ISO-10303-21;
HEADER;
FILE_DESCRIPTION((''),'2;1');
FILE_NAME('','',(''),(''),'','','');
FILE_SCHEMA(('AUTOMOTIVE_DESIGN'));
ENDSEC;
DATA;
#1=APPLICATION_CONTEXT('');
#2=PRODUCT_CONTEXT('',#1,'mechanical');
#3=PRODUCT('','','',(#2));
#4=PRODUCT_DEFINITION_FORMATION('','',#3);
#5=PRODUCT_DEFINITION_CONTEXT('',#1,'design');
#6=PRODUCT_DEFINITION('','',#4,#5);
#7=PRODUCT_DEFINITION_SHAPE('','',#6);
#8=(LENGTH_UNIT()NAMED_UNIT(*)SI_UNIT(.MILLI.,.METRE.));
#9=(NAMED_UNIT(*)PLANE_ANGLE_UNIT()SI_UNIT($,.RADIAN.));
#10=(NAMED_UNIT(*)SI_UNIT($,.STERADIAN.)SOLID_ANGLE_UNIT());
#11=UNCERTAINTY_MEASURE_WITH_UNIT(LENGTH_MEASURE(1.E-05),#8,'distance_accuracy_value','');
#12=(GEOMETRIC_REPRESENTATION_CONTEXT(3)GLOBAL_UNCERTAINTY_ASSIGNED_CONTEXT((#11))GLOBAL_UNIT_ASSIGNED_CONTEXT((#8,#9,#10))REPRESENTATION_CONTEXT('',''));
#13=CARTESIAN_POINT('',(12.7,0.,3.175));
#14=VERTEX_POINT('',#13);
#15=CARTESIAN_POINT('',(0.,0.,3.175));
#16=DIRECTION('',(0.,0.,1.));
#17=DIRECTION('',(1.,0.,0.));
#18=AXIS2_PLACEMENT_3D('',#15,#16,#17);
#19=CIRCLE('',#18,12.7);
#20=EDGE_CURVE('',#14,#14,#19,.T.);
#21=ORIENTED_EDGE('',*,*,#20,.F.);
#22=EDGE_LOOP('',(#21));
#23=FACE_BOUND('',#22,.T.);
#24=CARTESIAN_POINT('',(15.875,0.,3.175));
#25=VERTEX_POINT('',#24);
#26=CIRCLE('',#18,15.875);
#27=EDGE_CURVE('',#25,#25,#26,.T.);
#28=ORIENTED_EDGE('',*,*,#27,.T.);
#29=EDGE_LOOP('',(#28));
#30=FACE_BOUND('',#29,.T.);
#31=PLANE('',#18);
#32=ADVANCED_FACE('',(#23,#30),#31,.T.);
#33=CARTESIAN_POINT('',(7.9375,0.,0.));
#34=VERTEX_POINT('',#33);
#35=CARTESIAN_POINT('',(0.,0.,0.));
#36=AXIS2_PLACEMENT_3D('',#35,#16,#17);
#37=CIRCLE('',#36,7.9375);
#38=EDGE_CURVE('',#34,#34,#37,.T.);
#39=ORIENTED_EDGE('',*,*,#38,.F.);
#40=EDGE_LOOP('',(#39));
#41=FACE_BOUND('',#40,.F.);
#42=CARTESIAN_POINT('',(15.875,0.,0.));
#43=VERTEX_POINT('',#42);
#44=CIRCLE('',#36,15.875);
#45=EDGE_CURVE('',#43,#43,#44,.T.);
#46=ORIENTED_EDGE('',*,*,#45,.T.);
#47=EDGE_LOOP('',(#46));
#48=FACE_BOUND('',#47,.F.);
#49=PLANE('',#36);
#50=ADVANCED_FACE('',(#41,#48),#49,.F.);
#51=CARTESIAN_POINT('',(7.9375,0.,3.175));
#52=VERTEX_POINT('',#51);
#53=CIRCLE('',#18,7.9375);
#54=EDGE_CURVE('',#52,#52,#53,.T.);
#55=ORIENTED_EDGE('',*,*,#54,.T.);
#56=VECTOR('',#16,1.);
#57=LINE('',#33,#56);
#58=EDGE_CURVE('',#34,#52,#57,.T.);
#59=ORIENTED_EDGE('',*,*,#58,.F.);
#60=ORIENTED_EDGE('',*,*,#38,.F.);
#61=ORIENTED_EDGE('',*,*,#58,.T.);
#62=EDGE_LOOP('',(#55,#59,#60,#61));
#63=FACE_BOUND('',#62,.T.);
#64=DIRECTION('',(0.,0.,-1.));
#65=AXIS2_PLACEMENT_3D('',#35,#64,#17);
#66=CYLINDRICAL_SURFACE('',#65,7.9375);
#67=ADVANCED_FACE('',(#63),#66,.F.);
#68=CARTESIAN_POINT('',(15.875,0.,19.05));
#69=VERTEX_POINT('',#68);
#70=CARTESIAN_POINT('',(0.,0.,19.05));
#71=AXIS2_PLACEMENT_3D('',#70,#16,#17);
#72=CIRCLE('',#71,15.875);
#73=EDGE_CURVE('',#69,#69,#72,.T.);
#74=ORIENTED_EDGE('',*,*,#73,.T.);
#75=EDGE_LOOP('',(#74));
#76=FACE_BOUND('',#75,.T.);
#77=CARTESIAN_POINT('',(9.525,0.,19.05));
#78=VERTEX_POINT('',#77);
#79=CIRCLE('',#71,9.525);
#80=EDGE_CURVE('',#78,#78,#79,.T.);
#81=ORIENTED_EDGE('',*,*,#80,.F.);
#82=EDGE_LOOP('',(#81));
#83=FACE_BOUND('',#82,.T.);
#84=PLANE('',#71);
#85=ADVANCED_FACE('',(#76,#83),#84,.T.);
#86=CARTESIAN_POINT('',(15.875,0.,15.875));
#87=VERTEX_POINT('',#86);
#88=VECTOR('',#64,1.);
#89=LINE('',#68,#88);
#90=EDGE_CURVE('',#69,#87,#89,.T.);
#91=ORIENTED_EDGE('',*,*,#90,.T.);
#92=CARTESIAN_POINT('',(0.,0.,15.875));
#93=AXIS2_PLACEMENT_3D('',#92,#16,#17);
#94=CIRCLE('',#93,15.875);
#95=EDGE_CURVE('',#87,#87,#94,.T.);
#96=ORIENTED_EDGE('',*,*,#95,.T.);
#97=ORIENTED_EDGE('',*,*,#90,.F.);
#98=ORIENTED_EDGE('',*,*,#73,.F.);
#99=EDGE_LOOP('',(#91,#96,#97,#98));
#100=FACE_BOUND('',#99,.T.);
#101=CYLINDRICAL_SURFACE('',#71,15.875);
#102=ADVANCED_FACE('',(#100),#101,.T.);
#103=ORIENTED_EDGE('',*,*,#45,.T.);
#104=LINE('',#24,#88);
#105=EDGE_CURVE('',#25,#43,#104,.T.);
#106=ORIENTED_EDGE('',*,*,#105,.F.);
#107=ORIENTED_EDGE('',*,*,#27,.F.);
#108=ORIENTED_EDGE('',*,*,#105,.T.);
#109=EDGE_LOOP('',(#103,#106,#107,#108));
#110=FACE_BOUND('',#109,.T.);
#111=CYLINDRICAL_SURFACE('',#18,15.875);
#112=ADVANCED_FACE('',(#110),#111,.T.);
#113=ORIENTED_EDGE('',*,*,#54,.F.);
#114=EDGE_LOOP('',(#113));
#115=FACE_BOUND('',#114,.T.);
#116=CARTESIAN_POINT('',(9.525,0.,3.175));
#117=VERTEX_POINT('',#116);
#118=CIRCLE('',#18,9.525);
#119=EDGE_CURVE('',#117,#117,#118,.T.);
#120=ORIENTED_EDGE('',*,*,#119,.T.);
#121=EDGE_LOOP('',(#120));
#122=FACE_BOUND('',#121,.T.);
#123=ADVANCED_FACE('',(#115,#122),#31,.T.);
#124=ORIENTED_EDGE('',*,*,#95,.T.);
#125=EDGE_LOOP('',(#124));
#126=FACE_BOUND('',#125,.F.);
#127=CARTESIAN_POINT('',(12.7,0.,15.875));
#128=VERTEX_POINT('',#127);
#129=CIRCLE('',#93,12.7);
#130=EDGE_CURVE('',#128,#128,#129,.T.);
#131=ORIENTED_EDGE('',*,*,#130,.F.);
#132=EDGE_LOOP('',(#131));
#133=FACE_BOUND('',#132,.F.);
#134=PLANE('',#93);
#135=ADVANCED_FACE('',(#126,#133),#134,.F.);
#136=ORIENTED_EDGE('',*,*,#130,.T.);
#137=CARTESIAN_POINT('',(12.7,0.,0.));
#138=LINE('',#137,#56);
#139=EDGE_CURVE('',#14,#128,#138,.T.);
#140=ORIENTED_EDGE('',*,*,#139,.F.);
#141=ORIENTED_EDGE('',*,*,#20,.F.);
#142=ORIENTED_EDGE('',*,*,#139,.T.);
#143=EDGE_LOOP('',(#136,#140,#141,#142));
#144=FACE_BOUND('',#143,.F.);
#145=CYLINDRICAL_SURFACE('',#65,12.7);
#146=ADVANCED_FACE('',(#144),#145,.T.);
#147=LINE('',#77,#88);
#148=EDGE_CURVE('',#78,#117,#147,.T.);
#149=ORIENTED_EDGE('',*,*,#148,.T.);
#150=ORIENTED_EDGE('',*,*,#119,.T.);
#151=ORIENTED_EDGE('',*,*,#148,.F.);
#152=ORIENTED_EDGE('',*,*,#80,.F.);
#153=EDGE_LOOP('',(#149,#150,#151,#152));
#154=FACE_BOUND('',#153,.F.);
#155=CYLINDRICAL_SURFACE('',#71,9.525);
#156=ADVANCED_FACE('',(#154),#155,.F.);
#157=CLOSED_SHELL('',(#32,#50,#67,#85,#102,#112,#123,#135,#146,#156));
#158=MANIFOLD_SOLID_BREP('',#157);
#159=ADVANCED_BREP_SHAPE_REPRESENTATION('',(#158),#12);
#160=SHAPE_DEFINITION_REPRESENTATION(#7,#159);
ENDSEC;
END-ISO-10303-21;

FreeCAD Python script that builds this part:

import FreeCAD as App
import Part
import Sketcher

V = App.Vector
Q = App.Units.Quantity

doc = App.newDocument("Part")
params = doc.addObject("Spreadsheet::Sheet", "Params")
for row, (alias, value) in enumerate([
    ("sketch1_diameter", "1 in"),
    ("sketch1_diameter2", "0.625 in"),
    ("pad1_length", "0.75 in"),
    ("sketch2_diameter", "0.75 in"),
    ("sketch2_diameter2", "0.625 in"),
    ("pocket1_length", "0.625 in"),
    ("sketch3_diameter", "1 in"),
    ("sketch3_diameter2", "1.25 in"),
    ("pad2_length", "0.125 in"),
    ("sketch4_diameter", "1 in"),
    ("sketch4_diameter2", "1.25 in"),
    ("pad3_length", "0.125 in"),
], start=1):
    params.set(f"A{row}", alias)
    params.set(f"B{row}", "=" + value)
    params.setAlias(f"B{row}", alias)

body = doc.addObject("PartDesign::Body", "Body")

# Sketch on XY plane
sketch1 = body.newObject("Sketcher::SketchObject", "Sketch")
sketch1.AttachmentSupport = (doc.getObject("XY_Plane"), [""])
sketch1.MapMode = "FlatFace"
sketch1.addGeometry(Part.Circle(V(0, 0, 0), V(0, 0, 1), 12.7), False)
sketch1.addGeometry(Part.Circle(V(0, 0, 0), V(0, 0, 1), 7.9375), False)
sketch1.addConstraint(Sketcher.Constraint("Coincident", 0, 3, -1, 1))
sketch1.addConstraint(Sketcher.Constraint("Coincident", 1, 3, -1, 1))
sketch1.addConstraint(Sketcher.Constraint("Diameter", 0, Q("1 in")))
sketch1.addConstraint(Sketcher.Constraint("Diameter", 1, Q("0.625 in")))
sketch1.setExpression("Constraints[2]", "Params.sketch1_diameter")
sketch1.setExpression("Constraints[3]", "Params.sketch1_diameter2")
pad1 = body.newObject("PartDesign::Pad", "Pad")
pad1.Profile = sketch1
pad1.setExpression("Length", "Params.pad1_length")

# Sketch on XY plane
sketch2 = body.newObject("Sketcher::SketchObject", "Sketch001")
sketch2.AttachmentSupport = (doc.getObject("XY_Plane"), [""])
sketch2.MapMode = "FlatFace"
sketch2.AttachmentOffset = App.Placement(V(0, 0, 0.75 * 25.4), App.Rotation())
sketch2.addGeometry(Part.Circle(V(0, 0, 0), V(0, 0, 1), 9.525), False)
sketch2.addGeometry(Part.Circle(V(0, 0, 0), V(0, 0, 1), 7.9375), False)
sketch2.addConstraint(Sketcher.Constraint("Coincident", 0, 3, -1, 1))
sketch2.addConstraint(Sketcher.Constraint("Coincident", 1, 3, -1, 1))
sketch2.addConstraint(Sketcher.Constraint("Diameter", 0, Q("0.75 in")))
sketch2.addConstraint(Sketcher.Constraint("Diameter", 1, Q("0.625 in")))
sketch2.setExpression("Constraints[2]", "Params.sketch2_diameter")
sketch2.setExpression("Constraints[3]", "Params.sketch2_diameter2")
pocket1 = body.newObject("PartDesign::Pocket", "Pocket")
pocket1.Profile = sketch2
pocket1.setExpression("Length", "Params.pocket1_length")

# Sketch on XY plane
sketch3 = body.newObject("Sketcher::SketchObject", "Sketch002")
sketch3.AttachmentSupport = (doc.getObject("XY_Plane"), [""])
sketch3.MapMode = "FlatFace"
sketch3.AttachmentOffset = App.Placement(V(0, 0, 0.125 * 25.4), App.Rotation())
sketch3.addGeometry(Part.Circle(V(0, 0, 0), V(0, 0, 1), 15.875), False)
sketch3.addGeometry(Part.Circle(V(0, 0, 0), V(0, 0, 1), 12.7), False)
sketch3.addConstraint(Sketcher.Constraint("Coincident", 0, 3, -1, 1))
sketch3.addConstraint(Sketcher.Constraint("Coincident", 1, 3, -1, 1))
sketch3.addConstraint(Sketcher.Constraint("Diameter", 1, Q("1 in")))
sketch3.addConstraint(Sketcher.Constraint("Diameter", 0, Q("1.25 in")))
sketch3.setExpression("Constraints[2]", "Params.sketch3_diameter")
sketch3.setExpression("Constraints[3]", "Params.sketch3_diameter2")
pad2 = body.newObject("PartDesign::Pad", "Pad001")
pad2.Profile = sketch3
pad2.setExpression("Length", "Params.pad2_length")
pad2.Reversed = True

# Sketch on XY plane
sketch4 = body.newObject("Sketcher::SketchObject", "Sketch003")
sketch4.AttachmentSupport = (doc.getObject("XY_Plane"), [""])
sketch4.MapMode = "FlatFace"
sketch4.AttachmentOffset = App.Placement(V(0, 0, 0.75 * 25.4), App.Rotation())
sketch4.addGeometry(Part.Circle(V(0, 0, 0), V(0, 0, 1), 15.875), False)
sketch4.addGeometry(Part.Circle(V(0, 0, 0), V(0, 0, 1), 12.7), False)
sketch4.addConstraint(Sketcher.Constraint("Coincident", 0, 3, -1, 1))
sketch4.addConstraint(Sketcher.Constraint("Coincident", 1, 3, -1, 1))
sketch4.addConstraint(Sketcher.Constraint("Diameter", 1, Q("1 in")))
sketch4.addConstraint(Sketcher.Constraint("Diameter", 0, Q("1.25 in")))
sketch4.setExpression("Constraints[2]", "Params.sketch4_diameter")
sketch4.setExpression("Constraints[3]", "Params.sketch4_diameter2")
pad3 = body.newObject("PartDesign::Pad", "Pad002")
pad3.Profile = sketch4
pad3.setExpression("Length", "Params.pad3_length")
pad3.Reversed = True

doc.recompute()
